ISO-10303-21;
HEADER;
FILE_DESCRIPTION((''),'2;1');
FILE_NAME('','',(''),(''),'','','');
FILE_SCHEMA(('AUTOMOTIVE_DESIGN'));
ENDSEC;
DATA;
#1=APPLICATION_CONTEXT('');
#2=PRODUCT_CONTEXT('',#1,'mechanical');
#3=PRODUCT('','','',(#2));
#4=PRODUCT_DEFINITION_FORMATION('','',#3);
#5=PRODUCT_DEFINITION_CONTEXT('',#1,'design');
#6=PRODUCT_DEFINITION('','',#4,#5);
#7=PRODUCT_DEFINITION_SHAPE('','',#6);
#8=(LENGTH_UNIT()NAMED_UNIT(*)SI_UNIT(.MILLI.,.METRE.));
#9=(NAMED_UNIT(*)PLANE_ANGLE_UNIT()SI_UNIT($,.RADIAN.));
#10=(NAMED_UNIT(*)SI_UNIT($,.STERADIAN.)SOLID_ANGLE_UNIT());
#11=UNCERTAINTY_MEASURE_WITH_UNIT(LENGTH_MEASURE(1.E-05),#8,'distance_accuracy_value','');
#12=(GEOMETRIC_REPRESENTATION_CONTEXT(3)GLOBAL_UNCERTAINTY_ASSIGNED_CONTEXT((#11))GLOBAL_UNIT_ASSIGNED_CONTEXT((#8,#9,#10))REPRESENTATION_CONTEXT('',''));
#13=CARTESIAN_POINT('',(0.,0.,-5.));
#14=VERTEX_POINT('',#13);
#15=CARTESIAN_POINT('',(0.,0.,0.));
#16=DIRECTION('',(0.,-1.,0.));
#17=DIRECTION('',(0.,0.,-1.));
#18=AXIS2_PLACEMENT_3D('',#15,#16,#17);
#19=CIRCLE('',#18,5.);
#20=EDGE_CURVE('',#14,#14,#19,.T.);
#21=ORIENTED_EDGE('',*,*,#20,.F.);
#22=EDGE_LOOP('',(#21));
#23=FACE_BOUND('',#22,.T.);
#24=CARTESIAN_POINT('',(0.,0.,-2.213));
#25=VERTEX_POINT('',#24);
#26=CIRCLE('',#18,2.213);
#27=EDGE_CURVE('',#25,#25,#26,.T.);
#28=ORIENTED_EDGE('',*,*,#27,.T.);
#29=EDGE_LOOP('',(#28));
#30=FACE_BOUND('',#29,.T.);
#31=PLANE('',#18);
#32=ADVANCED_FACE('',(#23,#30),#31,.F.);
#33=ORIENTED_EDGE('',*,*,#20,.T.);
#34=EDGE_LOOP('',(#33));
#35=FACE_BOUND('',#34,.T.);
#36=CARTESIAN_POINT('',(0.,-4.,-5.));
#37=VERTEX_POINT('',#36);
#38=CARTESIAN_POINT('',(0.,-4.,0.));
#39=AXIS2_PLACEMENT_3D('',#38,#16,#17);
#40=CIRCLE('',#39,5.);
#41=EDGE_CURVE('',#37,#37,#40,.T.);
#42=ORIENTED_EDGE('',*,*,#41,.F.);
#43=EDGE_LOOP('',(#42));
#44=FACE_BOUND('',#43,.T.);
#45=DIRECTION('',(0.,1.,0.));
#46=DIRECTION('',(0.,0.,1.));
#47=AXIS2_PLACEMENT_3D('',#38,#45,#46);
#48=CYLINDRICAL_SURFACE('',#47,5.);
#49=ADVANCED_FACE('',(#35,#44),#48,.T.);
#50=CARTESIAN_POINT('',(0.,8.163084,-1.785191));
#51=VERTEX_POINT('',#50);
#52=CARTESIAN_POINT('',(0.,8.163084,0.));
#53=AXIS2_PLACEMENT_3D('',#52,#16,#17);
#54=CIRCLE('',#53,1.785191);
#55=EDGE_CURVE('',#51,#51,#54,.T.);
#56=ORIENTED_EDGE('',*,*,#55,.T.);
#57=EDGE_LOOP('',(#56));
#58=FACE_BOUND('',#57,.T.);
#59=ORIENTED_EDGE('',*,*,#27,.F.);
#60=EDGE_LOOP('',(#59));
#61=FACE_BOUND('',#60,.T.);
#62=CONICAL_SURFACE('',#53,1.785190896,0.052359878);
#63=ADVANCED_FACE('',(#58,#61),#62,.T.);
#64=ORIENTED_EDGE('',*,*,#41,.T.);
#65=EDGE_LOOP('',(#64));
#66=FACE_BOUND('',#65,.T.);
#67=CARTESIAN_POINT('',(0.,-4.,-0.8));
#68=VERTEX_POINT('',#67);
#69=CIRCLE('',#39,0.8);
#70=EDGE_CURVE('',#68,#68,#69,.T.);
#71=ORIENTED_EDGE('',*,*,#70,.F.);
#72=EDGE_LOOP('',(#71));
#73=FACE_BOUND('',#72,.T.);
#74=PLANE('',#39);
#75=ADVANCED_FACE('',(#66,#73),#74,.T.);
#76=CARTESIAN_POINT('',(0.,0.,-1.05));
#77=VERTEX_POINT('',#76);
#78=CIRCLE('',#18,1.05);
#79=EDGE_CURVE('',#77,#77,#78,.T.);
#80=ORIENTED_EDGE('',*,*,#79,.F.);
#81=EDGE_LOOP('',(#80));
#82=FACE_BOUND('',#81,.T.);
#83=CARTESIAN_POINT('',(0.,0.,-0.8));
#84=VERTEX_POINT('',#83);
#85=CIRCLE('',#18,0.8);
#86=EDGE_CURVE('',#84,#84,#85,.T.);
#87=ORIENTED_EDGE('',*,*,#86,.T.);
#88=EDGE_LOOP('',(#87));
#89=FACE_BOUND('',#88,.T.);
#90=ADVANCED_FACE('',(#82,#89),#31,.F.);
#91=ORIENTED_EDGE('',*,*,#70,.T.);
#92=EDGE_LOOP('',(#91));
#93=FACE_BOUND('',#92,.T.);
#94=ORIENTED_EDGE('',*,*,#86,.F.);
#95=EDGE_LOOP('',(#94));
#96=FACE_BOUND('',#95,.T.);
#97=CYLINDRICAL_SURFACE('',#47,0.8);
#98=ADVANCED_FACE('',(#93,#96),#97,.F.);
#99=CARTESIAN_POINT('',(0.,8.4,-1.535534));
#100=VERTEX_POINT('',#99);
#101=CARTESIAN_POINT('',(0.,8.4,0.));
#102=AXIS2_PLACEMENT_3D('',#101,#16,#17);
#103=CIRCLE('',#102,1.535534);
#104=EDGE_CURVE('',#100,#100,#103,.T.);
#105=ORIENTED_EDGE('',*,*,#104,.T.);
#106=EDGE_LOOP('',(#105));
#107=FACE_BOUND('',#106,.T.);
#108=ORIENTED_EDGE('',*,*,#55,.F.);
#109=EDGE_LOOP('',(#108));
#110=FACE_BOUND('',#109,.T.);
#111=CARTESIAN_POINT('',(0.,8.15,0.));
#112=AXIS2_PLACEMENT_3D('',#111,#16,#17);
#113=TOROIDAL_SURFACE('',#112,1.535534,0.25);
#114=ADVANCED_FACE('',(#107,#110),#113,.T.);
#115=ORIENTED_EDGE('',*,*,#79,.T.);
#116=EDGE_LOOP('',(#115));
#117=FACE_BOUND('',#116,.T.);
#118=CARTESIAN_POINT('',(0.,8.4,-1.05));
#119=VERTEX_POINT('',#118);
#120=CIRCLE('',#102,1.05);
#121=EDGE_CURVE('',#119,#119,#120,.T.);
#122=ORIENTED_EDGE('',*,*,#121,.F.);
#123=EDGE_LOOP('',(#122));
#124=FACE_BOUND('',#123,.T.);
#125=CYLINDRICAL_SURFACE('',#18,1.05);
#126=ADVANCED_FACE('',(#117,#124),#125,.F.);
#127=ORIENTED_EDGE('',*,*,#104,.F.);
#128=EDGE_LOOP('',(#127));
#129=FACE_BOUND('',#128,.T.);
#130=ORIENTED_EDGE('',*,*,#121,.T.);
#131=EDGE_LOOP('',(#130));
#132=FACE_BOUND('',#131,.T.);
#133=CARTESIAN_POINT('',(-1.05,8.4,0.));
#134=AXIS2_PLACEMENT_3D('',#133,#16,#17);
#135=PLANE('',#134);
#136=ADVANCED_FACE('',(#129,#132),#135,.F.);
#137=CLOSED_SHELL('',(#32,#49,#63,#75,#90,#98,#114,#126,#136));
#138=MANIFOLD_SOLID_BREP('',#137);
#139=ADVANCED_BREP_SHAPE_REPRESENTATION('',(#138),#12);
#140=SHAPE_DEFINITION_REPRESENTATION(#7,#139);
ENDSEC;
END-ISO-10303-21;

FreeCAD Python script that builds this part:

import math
import FreeCAD as App
import Part
import Sketcher
Q = App.Units.Quantity

doc = App.newDocument("Part")
body = doc.addObject("PartDesign::Body", "Body")

# Sketch on XY plane
sketch1 = doc.addObject("Sketcher::SketchObject", "Sketch")
body.addObject(sketch1)
sketch1.AttachmentSupport = (doc.XY_Plane, [""])
sketch1.MapMode = "FlatFace"
sketch1.addGeometry(Part.LineSegment(App.Vector(-2.213, 0, 0), App.Vector(-1.05, 0, 0)), False)
sketch1.addGeometry(Part.LineSegment(App.Vector(-1.05, 0, 0), App.Vector(-1.05, 8.4, 0)), False)
sketch1.addGeometry(Part.LineSegment(App.Vector(-1.05, 8.4, 0), App.Vector(-1.535534, 8.4, 0)), False)
sketch1.addGeometry(Part.ArcOfCircle(Part.Circle(App.Vector(-1.535534, 8.15, 0), App.Vector(0, 0, 1), 0.25), math.radians(90), math.radians(177)), False)
sketch1.addGeometry(Part.LineSegment(App.Vector(-1.785191, 8.163084, 0), App.Vector(-2.213, 0, 0)), False)
sketch1.addConstraint(Sketcher.Constraint("Coincident", 0, 2, 1, 1))
sketch1.addConstraint(Sketcher.Constraint("Coincident", 1, 2, 2, 1))
sketch1.addConstraint(Sketcher.Constraint("Tangent", 2, 2, 3, 1))
sketch1.addConstraint(Sketcher.Constraint("Tangent", 3, 2, 4, 1))
sketch1.addConstraint(Sketcher.Constraint("Coincident", 4, 2, 0, 1))
sketch1.addConstraint(Sketcher.Constraint("Horizontal", 0))
sketch1.addConstraint(Sketcher.Constraint("Vertical", 1))
sketch1.addConstraint(Sketcher.Constraint("Horizontal", 2))
sketch1.addConstraint(Sketcher.Constraint("PointOnObject", 0, 2, -1))
sketch1.addConstraint(Sketcher.Constraint("Angle", 4, Q("-93 deg")))
sketch1.addConstraint(Sketcher.Constraint("Radius", 3, Q("0.25 mm")))
sketch1.addConstraint(Sketcher.Constraint("DistanceY", 1, 1, 1, 2, Q("8.4 mm")))
sketch1.addConstraint(Sketcher.Constraint("DistanceX", 0, 1, 0, 2, Q("1.163 mm")))
sketch1.addConstraint(Sketcher.Constraint("DistanceX", 0, 2, -1, 1, Q("1.05 mm")))
revolution = doc.addObject("PartDesign::Revolution", "Revolution")
body.addObject(revolution)
revolution.Profile = sketch1
revolution.ReferenceAxis = (sketch1, ["V_Axis"])
revolution.Angle = 360

# Sketch on XZ plane
sketch2 = doc.addObject("Sketcher::SketchObject", "Sketch001")
body.addObject(sketch2)
sketch2.AttachmentSupport = (doc.XZ_Plane, [""])
sketch2.MapMode = "FlatFace"
sketch2.addGeometry(Part.Circle(App.Vector(0, 0, 0), App.Vector(0, 0, 1), 5), False)
sketch2.addGeometry(Part.Circle(App.Vector(0, 0, 0), App.Vector(0, 0, 1), 0.8), False)
sketch2.addConstraint(Sketcher.Constraint("Coincident", 0, 3, -1, 1))
sketch2.addConstraint(Sketcher.Constraint("Coincident", 1, 3, -1, 1))
sketch2.addConstraint(Sketcher.Constraint("Diameter", 0, Q("10 mm")))
sketch2.addConstraint(Sketcher.Constraint("Diameter", 1, Q("1.6 mm")))
pad1 = doc.addObject("PartDesign::Pad", "Pad")
body.addObject(pad1)
pad1.Profile = sketch2
pad1.Length = 4

doc.recompute()
